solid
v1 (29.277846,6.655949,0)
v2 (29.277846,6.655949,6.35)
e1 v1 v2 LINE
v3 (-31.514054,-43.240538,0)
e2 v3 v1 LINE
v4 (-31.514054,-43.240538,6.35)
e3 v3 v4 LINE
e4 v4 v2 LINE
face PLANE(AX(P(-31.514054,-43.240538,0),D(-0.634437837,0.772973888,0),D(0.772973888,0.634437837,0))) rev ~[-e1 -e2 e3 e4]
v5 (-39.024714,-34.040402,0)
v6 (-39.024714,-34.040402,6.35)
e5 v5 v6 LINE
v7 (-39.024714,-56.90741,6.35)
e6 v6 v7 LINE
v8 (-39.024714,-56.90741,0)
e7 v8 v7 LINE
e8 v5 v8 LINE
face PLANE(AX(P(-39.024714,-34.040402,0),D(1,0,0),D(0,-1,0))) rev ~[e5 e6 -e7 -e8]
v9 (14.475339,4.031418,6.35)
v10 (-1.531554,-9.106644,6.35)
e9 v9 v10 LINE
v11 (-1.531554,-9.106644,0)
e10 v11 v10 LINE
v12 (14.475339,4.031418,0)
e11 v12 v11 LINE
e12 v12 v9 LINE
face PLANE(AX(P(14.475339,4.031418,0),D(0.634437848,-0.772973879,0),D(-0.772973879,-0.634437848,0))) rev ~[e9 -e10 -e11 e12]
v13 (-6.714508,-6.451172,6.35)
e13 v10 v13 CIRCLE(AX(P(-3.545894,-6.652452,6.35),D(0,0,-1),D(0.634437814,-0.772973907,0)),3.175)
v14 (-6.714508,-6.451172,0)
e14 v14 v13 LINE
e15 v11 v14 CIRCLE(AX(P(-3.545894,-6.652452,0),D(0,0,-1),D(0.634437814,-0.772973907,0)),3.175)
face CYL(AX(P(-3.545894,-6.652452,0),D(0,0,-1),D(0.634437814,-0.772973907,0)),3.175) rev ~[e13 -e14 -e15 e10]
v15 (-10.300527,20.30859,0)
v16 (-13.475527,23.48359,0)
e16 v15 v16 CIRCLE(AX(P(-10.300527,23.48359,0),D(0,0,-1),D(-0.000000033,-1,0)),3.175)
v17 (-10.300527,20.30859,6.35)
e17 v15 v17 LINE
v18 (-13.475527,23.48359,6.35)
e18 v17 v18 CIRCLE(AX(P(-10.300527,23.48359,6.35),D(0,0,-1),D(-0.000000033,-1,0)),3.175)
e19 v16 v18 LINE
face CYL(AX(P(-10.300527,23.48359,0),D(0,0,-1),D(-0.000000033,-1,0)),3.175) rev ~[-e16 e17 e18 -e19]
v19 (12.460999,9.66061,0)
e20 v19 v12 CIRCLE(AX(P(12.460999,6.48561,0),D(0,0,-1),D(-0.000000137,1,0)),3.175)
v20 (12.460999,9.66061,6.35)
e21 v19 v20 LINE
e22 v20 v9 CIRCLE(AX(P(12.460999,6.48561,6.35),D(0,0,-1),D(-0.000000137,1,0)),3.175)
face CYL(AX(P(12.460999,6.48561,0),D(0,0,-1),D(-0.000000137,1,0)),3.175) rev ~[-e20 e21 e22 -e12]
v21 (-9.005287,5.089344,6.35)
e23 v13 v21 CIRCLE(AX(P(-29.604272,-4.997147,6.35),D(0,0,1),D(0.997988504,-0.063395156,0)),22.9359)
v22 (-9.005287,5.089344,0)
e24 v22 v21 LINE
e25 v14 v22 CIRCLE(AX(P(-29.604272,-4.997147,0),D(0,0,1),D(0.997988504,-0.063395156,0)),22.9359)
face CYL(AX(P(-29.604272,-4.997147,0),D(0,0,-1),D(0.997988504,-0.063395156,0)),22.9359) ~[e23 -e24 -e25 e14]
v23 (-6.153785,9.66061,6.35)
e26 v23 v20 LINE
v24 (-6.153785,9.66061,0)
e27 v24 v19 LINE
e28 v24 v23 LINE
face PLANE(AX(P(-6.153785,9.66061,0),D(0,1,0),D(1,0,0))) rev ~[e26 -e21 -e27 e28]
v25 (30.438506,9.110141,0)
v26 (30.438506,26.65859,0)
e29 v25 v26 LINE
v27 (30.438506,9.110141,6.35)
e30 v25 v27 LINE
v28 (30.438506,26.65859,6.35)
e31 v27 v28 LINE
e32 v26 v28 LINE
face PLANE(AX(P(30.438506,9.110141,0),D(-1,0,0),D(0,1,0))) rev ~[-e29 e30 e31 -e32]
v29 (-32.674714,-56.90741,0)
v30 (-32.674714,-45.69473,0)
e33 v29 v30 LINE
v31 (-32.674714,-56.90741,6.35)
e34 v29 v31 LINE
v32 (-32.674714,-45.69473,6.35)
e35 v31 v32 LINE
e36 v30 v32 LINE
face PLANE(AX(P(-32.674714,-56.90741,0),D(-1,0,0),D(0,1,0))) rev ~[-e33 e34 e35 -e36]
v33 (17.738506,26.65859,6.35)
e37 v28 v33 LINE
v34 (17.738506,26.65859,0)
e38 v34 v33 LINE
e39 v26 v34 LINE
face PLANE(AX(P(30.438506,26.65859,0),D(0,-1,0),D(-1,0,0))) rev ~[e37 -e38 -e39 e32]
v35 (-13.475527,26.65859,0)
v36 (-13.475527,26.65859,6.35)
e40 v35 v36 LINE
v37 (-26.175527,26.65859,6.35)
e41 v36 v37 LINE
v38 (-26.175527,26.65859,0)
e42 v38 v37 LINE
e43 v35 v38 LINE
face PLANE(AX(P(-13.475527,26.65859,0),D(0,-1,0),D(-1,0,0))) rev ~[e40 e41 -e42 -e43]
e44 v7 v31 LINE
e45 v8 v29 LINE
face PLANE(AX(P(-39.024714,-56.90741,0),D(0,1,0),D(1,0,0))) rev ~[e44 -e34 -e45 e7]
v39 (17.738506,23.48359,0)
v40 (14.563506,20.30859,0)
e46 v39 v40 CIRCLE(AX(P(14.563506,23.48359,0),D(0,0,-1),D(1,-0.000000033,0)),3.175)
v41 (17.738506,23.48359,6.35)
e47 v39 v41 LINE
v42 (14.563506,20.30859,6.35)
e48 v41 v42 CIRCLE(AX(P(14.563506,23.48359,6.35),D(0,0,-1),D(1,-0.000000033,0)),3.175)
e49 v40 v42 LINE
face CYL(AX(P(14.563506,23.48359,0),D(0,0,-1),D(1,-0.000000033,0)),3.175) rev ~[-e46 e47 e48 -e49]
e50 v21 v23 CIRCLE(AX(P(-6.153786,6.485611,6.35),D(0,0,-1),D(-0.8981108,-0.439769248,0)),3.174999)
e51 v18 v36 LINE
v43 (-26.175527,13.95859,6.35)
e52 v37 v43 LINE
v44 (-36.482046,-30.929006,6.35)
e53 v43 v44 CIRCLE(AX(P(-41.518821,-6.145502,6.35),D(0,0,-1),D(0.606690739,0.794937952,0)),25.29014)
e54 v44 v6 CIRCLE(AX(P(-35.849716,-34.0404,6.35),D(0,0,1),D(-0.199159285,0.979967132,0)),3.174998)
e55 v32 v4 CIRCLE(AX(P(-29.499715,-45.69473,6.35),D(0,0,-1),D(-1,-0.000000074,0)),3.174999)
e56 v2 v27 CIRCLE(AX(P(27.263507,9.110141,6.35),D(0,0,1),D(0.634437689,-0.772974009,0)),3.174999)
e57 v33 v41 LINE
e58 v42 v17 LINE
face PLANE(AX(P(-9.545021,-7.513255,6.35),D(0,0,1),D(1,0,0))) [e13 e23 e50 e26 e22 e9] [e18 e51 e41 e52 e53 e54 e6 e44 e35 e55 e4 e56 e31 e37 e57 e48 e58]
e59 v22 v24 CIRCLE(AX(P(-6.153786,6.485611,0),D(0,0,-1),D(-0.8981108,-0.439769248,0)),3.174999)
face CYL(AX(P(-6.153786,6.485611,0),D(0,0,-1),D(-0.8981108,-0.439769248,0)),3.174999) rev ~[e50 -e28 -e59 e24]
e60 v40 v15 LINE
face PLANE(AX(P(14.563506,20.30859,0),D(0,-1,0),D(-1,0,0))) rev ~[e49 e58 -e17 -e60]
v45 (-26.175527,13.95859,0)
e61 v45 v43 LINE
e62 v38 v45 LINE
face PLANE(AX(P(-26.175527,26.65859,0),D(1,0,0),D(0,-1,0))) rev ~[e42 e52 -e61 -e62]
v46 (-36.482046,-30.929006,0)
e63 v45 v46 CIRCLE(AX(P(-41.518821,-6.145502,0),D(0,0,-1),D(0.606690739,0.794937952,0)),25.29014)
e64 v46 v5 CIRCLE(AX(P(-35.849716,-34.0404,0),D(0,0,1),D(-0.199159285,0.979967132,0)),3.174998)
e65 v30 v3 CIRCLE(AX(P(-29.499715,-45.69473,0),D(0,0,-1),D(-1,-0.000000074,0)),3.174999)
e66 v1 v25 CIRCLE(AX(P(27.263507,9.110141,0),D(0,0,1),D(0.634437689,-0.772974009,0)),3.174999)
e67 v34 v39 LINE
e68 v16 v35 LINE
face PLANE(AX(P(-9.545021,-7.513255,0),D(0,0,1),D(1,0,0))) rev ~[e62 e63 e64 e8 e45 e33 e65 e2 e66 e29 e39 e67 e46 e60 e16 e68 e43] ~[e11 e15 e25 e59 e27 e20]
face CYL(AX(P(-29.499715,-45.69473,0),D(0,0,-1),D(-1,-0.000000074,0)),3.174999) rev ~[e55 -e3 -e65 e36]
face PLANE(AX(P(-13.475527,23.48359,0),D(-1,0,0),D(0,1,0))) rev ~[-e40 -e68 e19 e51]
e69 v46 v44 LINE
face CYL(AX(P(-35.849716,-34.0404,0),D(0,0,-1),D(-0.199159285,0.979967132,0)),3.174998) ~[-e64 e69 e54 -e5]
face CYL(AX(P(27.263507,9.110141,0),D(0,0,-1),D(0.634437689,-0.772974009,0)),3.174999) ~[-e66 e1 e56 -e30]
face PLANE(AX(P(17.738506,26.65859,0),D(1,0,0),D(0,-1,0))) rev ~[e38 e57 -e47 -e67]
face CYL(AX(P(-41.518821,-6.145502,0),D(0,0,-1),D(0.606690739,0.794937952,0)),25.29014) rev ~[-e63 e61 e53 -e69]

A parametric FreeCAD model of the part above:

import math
import FreeCAD as App
import Part
import Sketcher
Q = App.Units.Quantity

doc = App.newDocument("Part")
body = doc.addObject("PartDesign::Body", "Body")

sketch1 = body.newObject("Sketcher::SketchObject", "Sketch")
sketch1.AttachmentSupport = (doc.getObject("XY_Plane"), [""])
sketch1.MapMode = "FlatFace"
sketch1.addGeometry(Part.LineSegment(App.Vector(-13.475527, 26.65859, 0), App.Vector(-26.175527, 26.65859, 0)), False)
sketch1.addGeometry(Part.LineSegment(App.Vector(-26.175527, 26.65859, 0), App.Vector(-26.175527, 13.95859, 0)), False)
sketch1.addGeometry(Part.ArcOfCircle(Part.Circle(App.Vector(-41.518821, -6.145502, 0), App.Vector(0, 0, 1), 25.29014), math.radians(-78.51218), math.radians(52.649395)), False)
sketch1.addGeometry(Part.ArcOfCircle(Part.Circle(App.Vector(-35.849716, -34.0404, 0), App.Vector(0, 0, 1), 3.174998), math.radians(101.487801), math.radians(180.000034)), False)
sketch1.addGeometry(Part.LineSegment(App.Vector(-39.024714, -34.040402, 0), App.Vector(-39.024714, -56.90741, 0)), False)
sketch1.addGeometry(Part.LineSegment(App.Vector(-39.024714, -56.90741, 0), App.Vector(-32.674714, -56.90741, 0)), False)
sketch1.addGeometry(Part.LineSegment(App.Vector(-32.674714, -56.90741, 0), App.Vector(-32.674714, -45.69473, 0)), False)
sketch1.addGeometry(Part.ArcOfCircle(Part.Circle(App.Vector(-29.499715, -45.69473, 0), App.Vector(0, 0, 1), 3.174999), math.radians(129.378291), math.radians(180.000004)), False)
sketch1.addGeometry(Part.LineSegment(App.Vector(-31.514054, -43.240538, 0), App.Vector(29.277846, 6.655949, 0)), False)
sketch1.addGeometry(Part.ArcOfCircle(Part.Circle(App.Vector(27.263507, 9.110141, 0), App.Vector(0, 0, 1), 3.174999), math.radians(-50.621709), math.radians(0.000004)), False)
sketch1.addGeometry(Part.LineSegment(App.Vector(30.438506, 9.110141, 0), App.Vector(30.438506, 26.65859, 0)), False)
sketch1.addGeometry(Part.LineSegment(App.Vector(30.438506, 26.65859, 0), App.Vector(17.738506, 26.65859, 0)), False)
sketch1.addGeometry(Part.LineSegment(App.Vector(17.738506, 26.65859, 0), App.Vector(17.738506, 23.48359, 0)), False)
sketch1.addGeometry(Part.ArcOfCircle(Part.Circle(App.Vector(14.563506, 23.48359, 0), App.Vector(0, 0, 1), 3.175), math.radians(-89.999998), math.radians(-0.000002)), False)
sketch1.addGeometry(Part.LineSegment(App.Vector(14.563506, 20.30859, 0), App.Vector(-10.300527, 20.30859, 0)), False)
sketch1.addGeometry(Part.ArcOfCircle(Part.Circle(App.Vector(-10.300527, 23.48359, 0), App.Vector(0, 0, 1), 3.175), math.radians(-179.999998), math.radians(-90.000002)), False)
sketch1.addGeometry(Part.LineSegment(App.Vector(-13.475527, 23.48359, 0), App.Vector(-13.475527, 26.65859, 0)), False)
sketch1.addGeometry(Part.LineSegment(App.Vector(14.475339, 4.031418, 0), App.Vector(-1.531554, -9.106644, 0)), False)
sketch1.addGeometry(Part.ArcOfCircle(Part.Circle(App.Vector(-3.545894, -6.652452, 0), App.Vector(0, 0, 1), 3.175), math.radians(176.365288), math.radians(309.378301)), False)
sketch1.addGeometry(Part.ArcOfCircle(Part.Circle(App.Vector(-29.604272, -4.997147, 0), App.Vector(0, 0, 1), 22.9359), math.radians(-3.634712), math.radians(26.089125)), False)
sketch1.addGeometry(Part.ArcOfCircle(Part.Circle(App.Vector(-6.153786, 6.485611, 0), App.Vector(0, 0, 1), 3.174999), math.radians(89.999981), math.radians(206.089159)), False)
sketch1.addGeometry(Part.LineSegment(App.Vector(-6.153785, 9.66061, 0), App.Vector(12.460999, 9.66061, 0)), False)
sketch1.addGeometry(Part.ArcOfCircle(Part.Circle(App.Vector(12.460999, 6.48561, 0), App.Vector(0, 0, 1), 3.175), math.radians(-50.621707), math.radians(90.000008)), False)
sketch1.addConstraint(Sketcher.Constraint("Coincident", 0, 2, 1, 1))
sketch1.addConstraint(Sketcher.Constraint("Coincident", 1, 2, 2, 2))
sketch1.addConstraint(Sketcher.Constraint("Coincident", 2, 1, 3, 1))
sketch1.addConstraint(Sketcher.Constraint("Coincident", 3, 2, 4, 1))
sketch1.addConstraint(Sketcher.Constraint("Coincident", 4, 2, 5, 1))
sketch1.addConstraint(Sketcher.Constraint("Coincident", 5, 2, 6, 1))
sketch1.addConstraint(Sketcher.Constraint("Coincident", 6, 2, 7, 2))
sketch1.addConstraint(Sketcher.Constraint("Coincident", 7, 1, 8, 1))
sketch1.addConstraint(Sketcher.Constraint("Coincident", 8, 2, 9, 1))
sketch1.addConstraint(Sketcher.Constraint("Coincident", 9, 2, 10, 1))
sketch1.addConstraint(Sketcher.Constraint("Coincident", 10, 2, 11, 1))
sketch1.addConstraint(Sketcher.Constraint("Coincident", 11, 2, 12, 1))
sketch1.addConstraint(Sketcher.Constraint("Coincident", 12, 2, 13, 2))
sketch1.addConstraint(Sketcher.Constraint("Coincident", 13, 1, 14, 1))
sketch1.addConstraint(Sketcher.Constraint("Coincident", 14, 2, 15, 2))
sketch1.addConstraint(Sketcher.Constraint("Coincident", 15, 1, 16, 1))
sketch1.addConstraint(Sketcher.Constraint("Coincident", 16, 2, 0, 1))
sketch1.addConstraint(Sketcher.Constraint("Coincident", 17, 2, 18, 2))
sketch1.addConstraint(Sketcher.Constraint("Coincident", 18, 1, 19, 1))
sketch1.addConstraint(Sketcher.Constraint("Coincident", 19, 2, 20, 2))
sketch1.addConstraint(Sketcher.Constraint("Coincident", 20, 1, 21, 1))
sketch1.addConstraint(Sketcher.Constraint("Coincident", 21, 2, 22, 2))
sketch1.addConstraint(Sketcher.Constraint("Coincident", 22, 1, 17, 1))
sketch1.addConstraint(Sketcher.Constraint("Horizontal", 0))
sketch1.addConstraint(Sketcher.Constraint("Vertical", 1))
sketch1.addConstraint(Sketcher.Constraint("Vertical", 4))
sketch1.addConstraint(Sketcher.Constraint("Horizontal", 5))
sketch1.addConstraint(Sketcher.Constraint("Vertical", 6))
sketch1.addConstraint(Sketcher.Constraint("Vertical", 10))
sketch1.addConstraint(Sketcher.Constraint("Horizontal", 11))
sketch1.addConstraint(Sketcher.Constraint("Vertical", 12))
sketch1.addConstraint(Sketcher.Constraint("Horizontal", 14))
sketch1.addConstraint(Sketcher.Constraint("Vertical", 16))
sketch1.addConstraint(Sketcher.Constraint("Horizontal", 21))
sketch1.addConstraint(Sketcher.Constraint("DistanceX", 0, 2, 0, 1, Q("0.5 in")))
sketch1.addConstraint(Sketcher.Constraint("DistanceX", 11, 2, 11, 1, Q("0.5 in")))
sketch1.addConstraint(Sketcher.Constraint("DistanceY", 1, 2, 1, 1, Q("0.5 in")))
sketch1.addConstraint(Sketcher.Constraint("Radius", 3, Q("0.1249999 in")))
sketch1.addConstraint(Sketcher.Constraint("Radius", 7, Q("0.125 in")))
sketch1.addConstraint(Sketcher.Constraint("Radius", 9, Q("0.125 in")))
sketch1.addConstraint(Sketcher.Constraint("Radius", 13, Q("0.125 in")))
sketch1.addConstraint(Sketcher.Constraint("Radius", 15, Q("0.125 in")))
sketch1.addConstraint(Sketcher.Constraint("Radius", 18, Q("0.125 in")))
sketch1.addConstraint(Sketcher.Constraint("Radius", 20, Q("0.125 in")))
sketch1.addConstraint(Sketcher.Constraint("Radius", 22, Q("0.125 in")))
sketch1.addConstraint(Sketcher.Constraint("DistanceX", 5, 1, 5, 2, Q("0.25 in")))
sketch1.addConstraint(Sketcher.Constraint("DistanceX", 13, 1, 9, 3, Q("0.5 in")))
sketch1.addConstraint(Sketcher.Constraint("DistanceY", 12, 2, 12, 1, Q("0.125 in")))
sketch1.addConstraint(Sketcher.Constraint("DistanceY", 16, 1, 16, 2, Q("0.125 in")))
sketch1.addConstraint(Sketcher.Constraint("Radius", 19, 22.9359))
sketch1.addConstraint(Sketcher.Constraint("DistanceY", 13, 1, 11, 2, Q("0.25 in")))
sketch1.addConstraint(Sketcher.Constraint("DistanceY", 14, 2, 0, 2, Q("0.25 in")))
sketch1.addConstraint(Sketcher.Constraint("Radius", 2, 25.29014))
sketch1.addConstraint(Sketcher.Constraint("DistanceX", 0, 2, 14, 2, Q("0.625 in")))
sketch1.addConstraint(Sketcher.Constraint("DistanceY", 6, 1, 6, 2, 11.21268))
sketch1.addConstraint(Sketcher.Constraint("DistanceY", 10, 1, 10, 2, 17.548449))
sketch1.addConstraint(Sketcher.Constraint("DistanceY", 2, 3, -1, 1, 6.145502))
sketch1.addConstraint(Sketcher.Constraint("DistanceY", 3, 3, -1, 1, 34.0404))
sketch1.addConstraint(Sketcher.Constraint("DistanceX", -1, 1, 22, 3, 12.460999))
sketch1.addConstraint(Sketcher.Constraint("DistanceX", -1, 1, 21, 2, 12.460999))
sketch1.addConstraint(Sketcher.Constraint("DistanceX", 18, 3, 9, 3, 30.809401))
sketch1.addConstraint(Sketcher.Constraint("DistanceY", 3, 2, 2, 3, 27.8949))
sketch1.addConstraint(Sketcher.Constraint("DistanceY", 18, 3, 8, 2, 13.308401))
sketch1.addConstraint(Sketcher.Constraint("DistanceX", 19, 2, 20, 3, 2.851501))
sketch1.addConstraint(Sketcher.Constraint("DistanceX", 19, 2, 20, 1, 2.851502))
sketch1.addConstraint(Sketcher.Constraint("Distance", 8, 78.646771))
sketch1.addConstraint(Sketcher.Constraint("DistanceX", 14, 2, 14, 1, 24.864033))
sketch1.addConstraint(Sketcher.Constraint("DistanceX", 21, 1, 21, 2, 18.614784))
sketch1.addConstraint(Sketcher.Constraint("DistanceY", 4, 2, 4, 1, 22.867008))
sketch1.addConstraint(Sketcher.Constraint("DistanceX", 2, 3, -1, 1, 41.518821))
sketch1.addConstraint(Sketcher.Constraint("DistanceY", 7, 3, -1, 1, 45.69473))
sketch1.addConstraint(Sketcher.Constraint("DistanceY", -1, 1, 9, 3, 9.110141))
sketch1.addConstraint(Sketcher.Constraint("DistanceY", -1, 1, 13, 3, 23.48359))
sketch1.addConstraint(Sketcher.Constraint("DistanceY", 18, 3, -1, 1, 6.652452))
sketch1.addConstraint(Sketcher.Constraint("DistanceY", -1, 1, 20, 3, 6.485611))
sketch1.addConstraint(Sketcher.Constraint("DistanceX", -1, 1, 22, 1, 14.475339))
sketch1.addConstraint(Sketcher.Constraint("DistanceX", 2, 1, 3, 3, 0.63233))
sketch1.addConstraint(Sketcher.Constraint("DistanceX", 18, 3, 17, 2, 2.01434))
sketch1.addConstraint(Sketcher.Constraint("DistanceY", 18, 3, 18, 1, 0.20128))
pad1 = body.newObject("PartDesign::Pad", "Pad")
pad1.Profile = sketch1
pad1.Length = Q("0.25 in")

doc.recompute()
